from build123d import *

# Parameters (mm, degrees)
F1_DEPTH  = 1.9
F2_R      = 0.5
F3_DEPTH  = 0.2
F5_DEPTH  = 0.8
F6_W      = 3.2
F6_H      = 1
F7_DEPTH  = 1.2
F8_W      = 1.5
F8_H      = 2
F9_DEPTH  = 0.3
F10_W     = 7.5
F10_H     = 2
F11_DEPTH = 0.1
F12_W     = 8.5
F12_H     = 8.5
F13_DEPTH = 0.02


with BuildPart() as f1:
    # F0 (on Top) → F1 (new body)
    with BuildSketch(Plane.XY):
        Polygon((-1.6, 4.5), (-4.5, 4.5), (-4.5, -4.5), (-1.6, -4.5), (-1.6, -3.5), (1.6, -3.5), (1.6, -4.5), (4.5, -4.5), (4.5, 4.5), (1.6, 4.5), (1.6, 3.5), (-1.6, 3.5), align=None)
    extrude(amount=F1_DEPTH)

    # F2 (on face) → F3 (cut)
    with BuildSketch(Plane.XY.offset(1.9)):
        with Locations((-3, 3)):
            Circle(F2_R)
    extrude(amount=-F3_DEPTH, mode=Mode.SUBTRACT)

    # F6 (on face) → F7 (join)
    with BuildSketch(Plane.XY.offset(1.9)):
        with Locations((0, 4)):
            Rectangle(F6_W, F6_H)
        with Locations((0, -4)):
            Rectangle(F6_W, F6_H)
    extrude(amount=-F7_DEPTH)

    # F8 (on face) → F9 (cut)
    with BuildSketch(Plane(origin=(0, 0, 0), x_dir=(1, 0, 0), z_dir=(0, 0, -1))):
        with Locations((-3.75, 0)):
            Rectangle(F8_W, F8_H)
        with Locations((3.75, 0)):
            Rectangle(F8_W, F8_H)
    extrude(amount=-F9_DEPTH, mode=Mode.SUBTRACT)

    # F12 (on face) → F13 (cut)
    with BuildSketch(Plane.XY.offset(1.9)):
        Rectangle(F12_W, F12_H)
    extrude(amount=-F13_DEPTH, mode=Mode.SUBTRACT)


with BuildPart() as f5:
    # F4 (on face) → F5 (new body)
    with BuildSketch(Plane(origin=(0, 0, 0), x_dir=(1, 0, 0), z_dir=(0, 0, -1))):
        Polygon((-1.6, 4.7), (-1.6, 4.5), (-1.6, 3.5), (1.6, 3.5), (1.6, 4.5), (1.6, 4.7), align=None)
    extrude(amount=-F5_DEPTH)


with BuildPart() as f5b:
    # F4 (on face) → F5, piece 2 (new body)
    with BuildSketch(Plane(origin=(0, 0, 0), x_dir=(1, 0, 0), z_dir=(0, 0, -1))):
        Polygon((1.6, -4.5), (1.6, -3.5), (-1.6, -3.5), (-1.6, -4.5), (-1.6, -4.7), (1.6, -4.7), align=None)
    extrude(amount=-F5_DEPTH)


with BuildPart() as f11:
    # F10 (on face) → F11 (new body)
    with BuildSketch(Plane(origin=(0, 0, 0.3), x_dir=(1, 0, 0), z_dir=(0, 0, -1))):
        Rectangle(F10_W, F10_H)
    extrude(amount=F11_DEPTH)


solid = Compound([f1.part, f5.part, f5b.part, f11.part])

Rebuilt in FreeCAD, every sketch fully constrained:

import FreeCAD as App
import Part
import Sketcher
from FreeCAD import Vector
Q = App.Units.Quantity

doc = App.newDocument("Part")
params = doc.addObject("Spreadsheet::Sheet", "Params")
for row, (alias, value) in enumerate([
    ("sketch1_height", "9 mm"),
    ("sketch1_height2", "1 mm"),
    ("sketch1_width", "2.9 mm"),
    ("sketch1_width2", "3.2 mm"),
    ("pad1_length", "1.9 mm"),
    ("sketch2_diameter", "1 mm"),
    ("pocket1_length", "0.2 mm"),
    ("sketch3_height", "1 mm"),
    ("sketch3_width", "3.2 mm"),
    ("pad2_length", "1.2 mm"),
    ("sketch4_height", "2 mm"),
    ("sketch4_width", "1.5 mm"),
    ("pocket2_length", "0.3 mm"),
    ("sketch5_width", "8.5 mm"),
    ("pocket3_length", "0.02 mm"),
    ("sketch6_width", "3.2 mm"),
    ("sketch6_height", "1.2 mm"),
    ("pad3_length", "0.8 mm"),
    ("sketch7_width", "3.2 mm"),
    ("sketch7_height", "1.2 mm"),
    ("pad4_length", "0.8 mm"),
    ("sketch8_height", "2 mm"),
    ("sketch8_width", "7.5 mm"),
    ("pad5_length", "0.1 mm"),
], start=1):
    params.set(f"A{row}", alias)
    params.set(f"B{row}", "=" + value)
    params.setAlias(f"B{row}", alias)

body = doc.addObject("PartDesign::Body", "Body")

sketch1 = body.newObject("Sketcher::SketchObject", "Sketch")
sketch1.AttachmentSupport = (doc.getObject("XY_Plane"), [""])
sketch1.MapMode = "FlatFace"
sketch1.addGeometry([
    Part.LineSegment(Vector(-1.6, 4.5, 0), Vector(-4.5, 4.5, 0)),
    Part.LineSegment(Vector(-4.5, 4.5, 0), Vector(-4.5, -4.5, 0)),
    Part.LineSegment(Vector(-4.5, -4.5, 0), Vector(-1.6, -4.5, 0)),
    Part.LineSegment(Vector(-1.6, -4.5, 0), Vector(-1.6, -3.5, 0)),
    Part.LineSegment(Vector(-1.6, -3.5, 0), Vector(1.6, -3.5, 0)),
    Part.LineSegment(Vector(1.6, -3.5, 0), Vector(1.6, -4.5, 0)),
    Part.LineSegment(Vector(1.6, -4.5, 0), Vector(4.5, -4.5, 0)),
    Part.LineSegment(Vector(4.5, -4.5, 0), Vector(4.5, 4.5, 0)),
    Part.LineSegment(Vector(4.5, 4.5, 0), Vector(1.6, 4.5, 0)),
    Part.LineSegment(Vector(1.6, 4.5, 0), Vector(1.6, 3.5, 0)),
    Part.LineSegment(Vector(1.6, 3.5, 0), Vector(-1.6, 3.5, 0)),
    Part.LineSegment(Vector(-1.6, 3.5, 0), Vector(-1.6, 4.5, 0)),
], False)
sketch1.addConstraint([
    Sketcher.Constraint("Coincident", 0, 2, 1, 1),
    Sketcher.Constraint("Coincident", 1, 2, 2, 1),
    Sketcher.Constraint("Coincident", 2, 2, 3, 1),
    Sketcher.Constraint("Coincident", 3, 2, 4, 1),
    Sketcher.Constraint("Coincident", 4, 2, 5, 1),
    Sketcher.Constraint("Coincident", 5, 2, 6, 1),
    Sketcher.Constraint("Coincident", 6, 2, 7, 1),
    Sketcher.Constraint("Coincident", 7, 2, 8, 1),
    Sketcher.Constraint("Coincident", 8, 2, 9, 1),
    Sketcher.Constraint("Coincident", 9, 2, 10, 1),
    Sketcher.Constraint("Coincident", 10, 2, 11, 1),
    Sketcher.Constraint("Coincident", 11, 2, 0, 1),
    Sketcher.Constraint("Horizontal", 0),
    Sketcher.Constraint("Vertical", 1),
    Sketcher.Constraint("Horizontal", 2),
    Sketcher.Constraint("Vertical", 3),
    Sketcher.Constraint("Horizontal", 4),
    Sketcher.Constraint("Vertical", 5),
    Sketcher.Constraint("Horizontal", 6),
    Sketcher.Constraint("Vertical", 7),
    Sketcher.Constraint("Horizontal", 8),
    Sketcher.Constraint("Vertical", 9),
    Sketcher.Constraint("Horizontal", 10),
    Sketcher.Constraint("Vertical", 11),
    Sketcher.Constraint("Symmetric", 0, 2, 6, 2, -1, 1),
    Sketcher.Constraint("Symmetric", 2, 2, 8, 2, -1, 1),
    Sketcher.Constraint("Symmetric", 4, 2, 10, 2, -1, 1),
    Sketcher.Constraint("Symmetric", 2, 2, 5, 2, -2),
    Sketcher.Constraint("DistanceY", 1, 2, 1, 1, Q("9 mm")),
    Sketcher.Constraint("DistanceY", 3, 1, 3, 2, Q("1 mm")),
    Sketcher.Constraint("DistanceX", 0, 2, 0, 1, Q("2.9 mm")),
    Sketcher.Constraint("DistanceX", 4, 1, 4, 2, Q("3.2 mm")),
])
sketch1.setExpression("Constraints[28]", "Params.sketch1_height")
sketch1.setExpression("Constraints[29]", "Params.sketch1_height2")
sketch1.setExpression("Constraints[30]", "Params.sketch1_width")
sketch1.setExpression("Constraints[31]", "Params.sketch1_width2")
pad1 = body.newObject("PartDesign::Pad", "Pad")
pad1.Profile = sketch1
pad1.setExpression("Length", "Params.pad1_length")

sketch2 = body.newObject("Sketcher::SketchObject", "Sketch001")
sketch2.AttachmentSupport = (doc.getObject("XY_Plane"), [""])
sketch2.MapMode = "FlatFace"
sketch2.AttachmentOffset = App.Placement(Vector(0, 0, 1.9), App.Rotation())
sketch2.addGeometry(Part.Circle(Vector(-3, 3, 0), Vector(0, 0, 1), 0.5), False)
sketch2.addConstraint([
    Sketcher.Constraint("Diameter", 0, Q("1 mm")),
    Sketcher.Constraint("DistanceX", 0, 3, -1, 1, Q("3 mm")),
    Sketcher.Constraint("DistanceY", -1, 1, 0, 3, Q("3 mm")),
])
sketch2.setExpression("Constraints[0]", "Params.sketch2_diameter")
pocket1 = body.newObject("PartDesign::Pocket", "Pocket")
pocket1.Profile = sketch2
pocket1.setExpression("Length", "Params.pocket1_length")

sketch3 = body.newObject("Sketcher::SketchObject", "Sketch002")
sketch3.AttachmentSupport = (doc.getObject("XY_Plane"), [""])
sketch3.MapMode = "FlatFace"
sketch3.AttachmentOffset = App.Placement(Vector(0, 0, 1.9), App.Rotation())
sketch3.addGeometry([
    Part.LineSegment(Vector(-1.6, 4.5, 0), Vector(-1.6, 3.5, 0)),
    Part.LineSegment(Vector(-1.6, 3.5, 0), Vector(1.6, 3.5, 0)),
    Part.LineSegment(Vector(1.6, 3.5, 0), Vector(1.6, 4.5, 0)),
    Part.LineSegment(Vector(1.6, 4.5, 0), Vector(-1.6, 4.5, 0)),
    Part.LineSegment(Vector(-1.6, -3.5, 0), Vector(-1.6, -4.5, 0)),
    Part.LineSegment(Vector(-1.6, -4.5, 0), Vector(1.6, -4.5, 0)),
    Part.LineSegment(Vector(1.6, -4.5, 0), Vector(1.6, -3.5, 0)),
    Part.LineSegment(Vector(1.6, -3.5, 0), Vector(-1.6, -3.5, 0)),
], False)
sketch3.addConstraint([
    Sketcher.Constraint("Coincident", 0, 2, 1, 1),
    Sketcher.Constraint("Coincident", 1, 2, 2, 1),
    Sketcher.Constraint("Coincident", 2, 2, 3, 1),
    Sketcher.Constraint("Coincident", 3, 2, 0, 1),
    Sketcher.Constraint("Coincident", 4, 2, 5, 1),
    Sketcher.Constraint("Coincident", 5, 2, 6, 1),
    Sketcher.Constraint("Coincident", 6, 2, 7, 1),
    Sketcher.Constraint("Coincident", 7, 2, 4, 1),
    Sketcher.Constraint("Vertical", 0),
    Sketcher.Constraint("Horizontal", 1),
    Sketcher.Constraint("Vertical", 2),
    Sketcher.Constraint("Horizontal", 3),
    Sketcher.Constraint("Vertical", 4),
    Sketcher.Constraint("Horizontal", 5),
    Sketcher.Constraint("Vertical", 6),
    Sketcher.Constraint("Horizontal", 7),
    Sketcher.Constraint("Symmetric", 2, 2, 4, 2, -1, 1),
    Sketcher.Constraint("Symmetric", 0, 2, 6, 2, -1, 1),
    Sketcher.Constraint("Vertical", 3, 2, 4, 2),
    Sketcher.Constraint("DistanceY", 0, 2, 0, 1, Q("1 mm")),
    Sketcher.Constraint("DistanceX", 1, 1, 1, 2, Q("3.2 mm")),
    Sketcher.Constraint("DistanceY", 4, 2, 0, 2, Q("8 mm")),
])
sketch3.setExpression("Constraints[19]", "Params.sketch3_height")
sketch3.setExpression("Constraints[20]", "Params.sketch3_width")
pad2 = body.newObject("PartDesign::Pad", "Pad001")
pad2.Profile = sketch3
pad2.setExpression("Length", "Params.pad2_length")
pad2.Reversed = True

sketch4 = body.newObject("Sketcher::SketchObject", "Sketch003")
sketch4.AttachmentSupport = (doc.getObject("XY_Plane"), [""])
sketch4.MapMode = "FlatFace"
sketch4.addGeometry([
    Part.LineSegment(Vector(-4.5, -1, 0), Vector(-4.5, 1, 0)),
    Part.LineSegment(Vector(-4.5, 1, 0), Vector(-3, 1, 0)),
    Part.LineSegment(Vector(-3, 1, 0), Vector(-3, -1, 0)),
    Part.LineSegment(Vector(-3, -1, 0), Vector(-4.5, -1, 0)),
    Part.LineSegment(Vector(3, -1, 0), Vector(3, 1, 0)),
    Part.LineSegment(Vector(3, 1, 0), Vector(4.5, 1, 0)),
    Part.LineSegment(Vector(4.5, 1, 0), Vector(4.5, -1, 0)),
    Part.LineSegment(Vector(4.5, -1, 0), Vector(3, -1, 0)),
], False)
sketch4.addConstraint([
    Sketcher.Constraint("Coincident", 0, 2, 1, 1),
    Sketcher.Constraint("Coincident", 1, 2, 2, 1),
    Sketcher.Constraint("Coincident", 2, 2, 3, 1),
    Sketcher.Constraint("Coincident", 3, 2, 0, 1),
    Sketcher.Constraint("Coincident", 4, 2, 5, 1),
    Sketcher.Constraint("Coincident", 5, 2, 6, 1),
    Sketcher.Constraint("Coincident", 6, 2, 7, 1),
    Sketcher.Constraint("Coincident", 7, 2, 4, 1),
    Sketcher.Constraint("Vertical", 0),
    Sketcher.Constraint("Horizontal", 1),
    Sketcher.Constraint("Vertical", 2),
    Sketcher.Constraint("Horizontal", 3),
    Sketcher.Constraint("Vertical", 4),
    Sketcher.Constraint("Horizontal", 5),
    Sketcher.Constraint("Vertical", 6),
    Sketcher.Constraint("Horizontal", 7),
    Sketcher.Constraint("Symmetric", 2, 2, 4, 2, -1, 1),
    Sketcher.Constraint("Symmetric", 0, 2, 6, 2, -1, 1),
    Sketcher.Constraint("Horizontal", 1, 2, 4, 2),
    Sketcher.Constraint("DistanceY", 0, 1, 0, 2, Q("2 mm")),
    Sketcher.Constraint("DistanceX", 1, 1, 1, 2, Q("1.5 mm")),
    Sketcher.Constraint("DistanceX", 1, 2, -1, 1, Q("3 mm")),
])
sketch4.setExpression("Constraints[19]", "Params.sketch4_height")
sketch4.setExpression("Constraints[20]", "Params.sketch4_width")
pocket2 = body.newObject("PartDesign::Pocket", "Pocket001")
pocket2.Profile = sketch4
pocket2.setExpression("Length", "Params.pocket2_length")
pocket2.Reversed = True

sketch5 = body.newObject("Sketcher::SketchObject", "Sketch004")
sketch5.AttachmentSupport = (doc.getObject("XY_Plane"), [""])
sketch5.MapMode = "FlatFace"
sketch5.AttachmentOffset = App.Placement(Vector(0, 0, 1.9), App.Rotation())
sketch5.addGeometry([
    Part.LineSegment(Vector(-4.25, 4.25, 0), Vector(-4.25, -4.25, 0)),
    Part.LineSegment(Vector(-4.25, -4.25, 0), Vector(4.25, -4.25, 0)),
    Part.LineSegment(Vector(4.25, -4.25, 0), Vector(4.25, 4.25, 0)),
    Part.LineSegment(Vector(4.25, 4.25, 0), Vector(-4.25, 4.25, 0)),
], False)
sketch5.addConstraint([
    Sketcher.Constraint("Coincident", 0, 2, 1, 1),
    Sketcher.Constraint("Coincident", 1, 2, 2, 1),
    Sketcher.Constraint("Coincident", 2, 2, 3, 1),
    Sketcher.Constraint("Coincident", 3, 2, 0, 1),
    Sketcher.Constraint("Vertical", 0),
    Sketcher.Constraint("Horizontal", 1),
    Sketcher.Constraint("Vertical", 2),
    Sketcher.Constraint("Horizontal", 3),
    Sketcher.Constraint("Symmetric", 0, 2, 2, 2, -1, 1),
    Sketcher.Constraint("Equal", 3, 0),
    Sketcher.Constraint("DistanceX", 1, 1, 1, 2, Q("8.5 mm")),
])
sketch5.setExpression("Constraints[10]", "Params.sketch5_width")
pocket3 = body.newObject("PartDesign::Pocket", "Pocket002")
pocket3.Profile = sketch5
pocket3.setExpression("Length", "Params.pocket3_length")
body2 = doc.addObject("PartDesign::Body", "Body001")

sketch6 = body2.newObject("Sketcher::SketchObject", "Sketch005")
sketch6.AttachmentSupport = (doc.getObject("XY_Plane001"), [""])
sketch6.MapMode = "FlatFace"
sketch6.addGeometry([
    Part.LineSegment(Vector(-1.6, -4.7, 0), Vector(-1.6, -3.5, 0)),
    Part.LineSegment(Vector(-1.6, -3.5, 0), Vector(1.6, -3.5, 0)),
    Part.LineSegment(Vector(1.6, -3.5, 0), Vector(1.6, -4.7, 0)),
    Part.LineSegment(Vector(1.6, -4.7, 0), Vector(-1.6, -4.7, 0)),
], False)
sketch6.addConstraint([
    Sketcher.Constraint("Coincident", 0, 2, 1, 1),
    Sketcher.Constraint("Coincident", 1, 2, 2, 1),
    Sketcher.Constraint("Coincident", 2, 2, 3, 1),
    Sketcher.Constraint("Coincident", 3, 2, 0, 1),
    Sketcher.Constraint("Vertical", 0),
    Sketcher.Constraint("Horizontal", 1),
    Sketcher.Constraint("Vertical", 2),
    Sketcher.Constraint("Horizontal", 3),
    Sketcher.Constraint("DistanceX", 1, 1, 1, 2, Q("3.2 mm")),
    Sketcher.Constraint("DistanceY", 0, 1, 0, 2, Q("1.2 mm")),
    Sketcher.Constraint("DistanceX", 0, 2, -1, 1, Q("1.6 mm")),
    Sketcher.Constraint("DistanceY", 0, 2, -1, 1, Q("3.5 mm")),
])
sketch6.setExpression("Constraints[8]", "Params.sketch6_width")
sketch6.setExpression("Constraints[9]", "Params.sketch6_height")
pad3 = body2.newObject("PartDesign::Pad", "Pad002")
pad3.Profile = sketch6
pad3.setExpression("Length", "Params.pad3_length")
body3 = doc.addObject("PartDesign::Body", "Body002")

sketch7 = body3.newObject("Sketcher::SketchObject", "Sketch006")
sketch7.AttachmentSupport = (doc.getObject("XY_Plane002"), [""])
sketch7.MapMode = "FlatFace"
sketch7.addGeometry([
    Part.LineSegment(Vector(1.6, 3.5, 0), Vector(-1.6, 3.5, 0)),
    Part.LineSegment(Vector(-1.6, 3.5, 0), Vector(-1.6, 4.7, 0)),
    Part.LineSegment(Vector(-1.6, 4.7, 0), Vector(1.6, 4.7, 0)),
    Part.LineSegment(Vector(1.6, 4.7, 0), Vector(1.6, 3.5, 0)),
], False)
sketch7.addConstraint([
    Sketcher.Constraint("Coincident", 0, 2, 1, 1),
    Sketcher.Constraint("Coincident", 1, 2, 2, 1),
    Sketcher.Constraint("Coincident", 2, 2, 3, 1),
    Sketcher.Constraint("Coincident", 3, 2, 0, 1),
    Sketcher.Constraint("Horizontal", 0),
    Sketcher.Constraint("Vertical", 1),
    Sketcher.Constraint("Horizontal", 2),
    Sketcher.Constraint("Vertical", 3),
    Sketcher.Constraint("DistanceX", 0, 2, 0, 1, Q("3.2 mm")),
    Sketcher.Constraint("DistanceY", 1, 1, 1, 2, Q("1.2 mm")),
    Sketcher.Constraint("DistanceX", 0, 2, -1, 1, Q("1.6 mm")),
    Sketcher.Constraint("DistanceY", -1, 1, 0, 2, Q("3.5 mm")),
])
sketch7.setExpression("Constraints[8]", "Params.sketch7_width")
sketch7.setExpression("Constraints[9]", "Params.sketch7_height")
pad4 = body3.newObject("PartDesign::Pad", "Pad003")
pad4.Profile = sketch7
pad4.setExpression("Length", "Params.pad4_length")
body4 = doc.addObject("PartDesign::Body", "Body003")

sketch8 = body4.newObject("Sketcher::SketchObject", "Sketch007")
sketch8.AttachmentSupport = (doc.getObject("XY_Plane003"), [""])
sketch8.MapMode = "FlatFace"
sketch8.AttachmentOffset = App.Placement(Vector(0, 0, 0.3), App.Rotation())
sketch8.addGeometry([
    Part.LineSegment(Vector(-3.75, -1, 0), Vector(-3.75, 1, 0)),
    Part.LineSegment(Vector(-3.75, 1, 0), Vector(3.75, 1, 0)),
    Part.LineSegment(Vector(3.75, 1, 0), Vector(3.75, -1, 0)),
    Part.LineSegment(Vector(3.75, -1, 0), Vector(-3.75, -1, 0)),
], False)
sketch8.addConstraint([
    Sketcher.Constraint("Coincident", 0, 2, 1, 1),
    Sketcher.Constraint("Coincident", 1, 2, 2, 1),
    Sketcher.Constraint("Coincident", 2, 2, 3, 1),
    Sketcher.Constraint("Coincident", 3, 2, 0, 1),
    Sketcher.Constraint("Vertical", 0),
    Sketcher.Constraint("Horizontal", 1),
    Sketcher.Constraint("Vertical", 2),
    Sketcher.Constraint("Horizontal", 3),
    Sketcher.Constraint("Symmetric", 0, 2, 2, 2, -1, 1),
    Sketcher.Constraint("DistanceY", 0, 1, 0, 2, Q("2 mm")),
    Sketcher.Constraint("DistanceX", 1, 1, 1, 2, Q("7.5 mm")),
])
sketch8.setExpression("Constraints[9]", "Params.sketch8_height")
sketch8.setExpression("Constraints[10]", "Params.sketch8_width")
pad5 = body4.newObject("PartDesign::Pad", "Pad004")
pad5.Profile = sketch8
pad5.setExpression("Length", "Params.pad5_length")
pad5.Reversed = True

doc.recompute()
